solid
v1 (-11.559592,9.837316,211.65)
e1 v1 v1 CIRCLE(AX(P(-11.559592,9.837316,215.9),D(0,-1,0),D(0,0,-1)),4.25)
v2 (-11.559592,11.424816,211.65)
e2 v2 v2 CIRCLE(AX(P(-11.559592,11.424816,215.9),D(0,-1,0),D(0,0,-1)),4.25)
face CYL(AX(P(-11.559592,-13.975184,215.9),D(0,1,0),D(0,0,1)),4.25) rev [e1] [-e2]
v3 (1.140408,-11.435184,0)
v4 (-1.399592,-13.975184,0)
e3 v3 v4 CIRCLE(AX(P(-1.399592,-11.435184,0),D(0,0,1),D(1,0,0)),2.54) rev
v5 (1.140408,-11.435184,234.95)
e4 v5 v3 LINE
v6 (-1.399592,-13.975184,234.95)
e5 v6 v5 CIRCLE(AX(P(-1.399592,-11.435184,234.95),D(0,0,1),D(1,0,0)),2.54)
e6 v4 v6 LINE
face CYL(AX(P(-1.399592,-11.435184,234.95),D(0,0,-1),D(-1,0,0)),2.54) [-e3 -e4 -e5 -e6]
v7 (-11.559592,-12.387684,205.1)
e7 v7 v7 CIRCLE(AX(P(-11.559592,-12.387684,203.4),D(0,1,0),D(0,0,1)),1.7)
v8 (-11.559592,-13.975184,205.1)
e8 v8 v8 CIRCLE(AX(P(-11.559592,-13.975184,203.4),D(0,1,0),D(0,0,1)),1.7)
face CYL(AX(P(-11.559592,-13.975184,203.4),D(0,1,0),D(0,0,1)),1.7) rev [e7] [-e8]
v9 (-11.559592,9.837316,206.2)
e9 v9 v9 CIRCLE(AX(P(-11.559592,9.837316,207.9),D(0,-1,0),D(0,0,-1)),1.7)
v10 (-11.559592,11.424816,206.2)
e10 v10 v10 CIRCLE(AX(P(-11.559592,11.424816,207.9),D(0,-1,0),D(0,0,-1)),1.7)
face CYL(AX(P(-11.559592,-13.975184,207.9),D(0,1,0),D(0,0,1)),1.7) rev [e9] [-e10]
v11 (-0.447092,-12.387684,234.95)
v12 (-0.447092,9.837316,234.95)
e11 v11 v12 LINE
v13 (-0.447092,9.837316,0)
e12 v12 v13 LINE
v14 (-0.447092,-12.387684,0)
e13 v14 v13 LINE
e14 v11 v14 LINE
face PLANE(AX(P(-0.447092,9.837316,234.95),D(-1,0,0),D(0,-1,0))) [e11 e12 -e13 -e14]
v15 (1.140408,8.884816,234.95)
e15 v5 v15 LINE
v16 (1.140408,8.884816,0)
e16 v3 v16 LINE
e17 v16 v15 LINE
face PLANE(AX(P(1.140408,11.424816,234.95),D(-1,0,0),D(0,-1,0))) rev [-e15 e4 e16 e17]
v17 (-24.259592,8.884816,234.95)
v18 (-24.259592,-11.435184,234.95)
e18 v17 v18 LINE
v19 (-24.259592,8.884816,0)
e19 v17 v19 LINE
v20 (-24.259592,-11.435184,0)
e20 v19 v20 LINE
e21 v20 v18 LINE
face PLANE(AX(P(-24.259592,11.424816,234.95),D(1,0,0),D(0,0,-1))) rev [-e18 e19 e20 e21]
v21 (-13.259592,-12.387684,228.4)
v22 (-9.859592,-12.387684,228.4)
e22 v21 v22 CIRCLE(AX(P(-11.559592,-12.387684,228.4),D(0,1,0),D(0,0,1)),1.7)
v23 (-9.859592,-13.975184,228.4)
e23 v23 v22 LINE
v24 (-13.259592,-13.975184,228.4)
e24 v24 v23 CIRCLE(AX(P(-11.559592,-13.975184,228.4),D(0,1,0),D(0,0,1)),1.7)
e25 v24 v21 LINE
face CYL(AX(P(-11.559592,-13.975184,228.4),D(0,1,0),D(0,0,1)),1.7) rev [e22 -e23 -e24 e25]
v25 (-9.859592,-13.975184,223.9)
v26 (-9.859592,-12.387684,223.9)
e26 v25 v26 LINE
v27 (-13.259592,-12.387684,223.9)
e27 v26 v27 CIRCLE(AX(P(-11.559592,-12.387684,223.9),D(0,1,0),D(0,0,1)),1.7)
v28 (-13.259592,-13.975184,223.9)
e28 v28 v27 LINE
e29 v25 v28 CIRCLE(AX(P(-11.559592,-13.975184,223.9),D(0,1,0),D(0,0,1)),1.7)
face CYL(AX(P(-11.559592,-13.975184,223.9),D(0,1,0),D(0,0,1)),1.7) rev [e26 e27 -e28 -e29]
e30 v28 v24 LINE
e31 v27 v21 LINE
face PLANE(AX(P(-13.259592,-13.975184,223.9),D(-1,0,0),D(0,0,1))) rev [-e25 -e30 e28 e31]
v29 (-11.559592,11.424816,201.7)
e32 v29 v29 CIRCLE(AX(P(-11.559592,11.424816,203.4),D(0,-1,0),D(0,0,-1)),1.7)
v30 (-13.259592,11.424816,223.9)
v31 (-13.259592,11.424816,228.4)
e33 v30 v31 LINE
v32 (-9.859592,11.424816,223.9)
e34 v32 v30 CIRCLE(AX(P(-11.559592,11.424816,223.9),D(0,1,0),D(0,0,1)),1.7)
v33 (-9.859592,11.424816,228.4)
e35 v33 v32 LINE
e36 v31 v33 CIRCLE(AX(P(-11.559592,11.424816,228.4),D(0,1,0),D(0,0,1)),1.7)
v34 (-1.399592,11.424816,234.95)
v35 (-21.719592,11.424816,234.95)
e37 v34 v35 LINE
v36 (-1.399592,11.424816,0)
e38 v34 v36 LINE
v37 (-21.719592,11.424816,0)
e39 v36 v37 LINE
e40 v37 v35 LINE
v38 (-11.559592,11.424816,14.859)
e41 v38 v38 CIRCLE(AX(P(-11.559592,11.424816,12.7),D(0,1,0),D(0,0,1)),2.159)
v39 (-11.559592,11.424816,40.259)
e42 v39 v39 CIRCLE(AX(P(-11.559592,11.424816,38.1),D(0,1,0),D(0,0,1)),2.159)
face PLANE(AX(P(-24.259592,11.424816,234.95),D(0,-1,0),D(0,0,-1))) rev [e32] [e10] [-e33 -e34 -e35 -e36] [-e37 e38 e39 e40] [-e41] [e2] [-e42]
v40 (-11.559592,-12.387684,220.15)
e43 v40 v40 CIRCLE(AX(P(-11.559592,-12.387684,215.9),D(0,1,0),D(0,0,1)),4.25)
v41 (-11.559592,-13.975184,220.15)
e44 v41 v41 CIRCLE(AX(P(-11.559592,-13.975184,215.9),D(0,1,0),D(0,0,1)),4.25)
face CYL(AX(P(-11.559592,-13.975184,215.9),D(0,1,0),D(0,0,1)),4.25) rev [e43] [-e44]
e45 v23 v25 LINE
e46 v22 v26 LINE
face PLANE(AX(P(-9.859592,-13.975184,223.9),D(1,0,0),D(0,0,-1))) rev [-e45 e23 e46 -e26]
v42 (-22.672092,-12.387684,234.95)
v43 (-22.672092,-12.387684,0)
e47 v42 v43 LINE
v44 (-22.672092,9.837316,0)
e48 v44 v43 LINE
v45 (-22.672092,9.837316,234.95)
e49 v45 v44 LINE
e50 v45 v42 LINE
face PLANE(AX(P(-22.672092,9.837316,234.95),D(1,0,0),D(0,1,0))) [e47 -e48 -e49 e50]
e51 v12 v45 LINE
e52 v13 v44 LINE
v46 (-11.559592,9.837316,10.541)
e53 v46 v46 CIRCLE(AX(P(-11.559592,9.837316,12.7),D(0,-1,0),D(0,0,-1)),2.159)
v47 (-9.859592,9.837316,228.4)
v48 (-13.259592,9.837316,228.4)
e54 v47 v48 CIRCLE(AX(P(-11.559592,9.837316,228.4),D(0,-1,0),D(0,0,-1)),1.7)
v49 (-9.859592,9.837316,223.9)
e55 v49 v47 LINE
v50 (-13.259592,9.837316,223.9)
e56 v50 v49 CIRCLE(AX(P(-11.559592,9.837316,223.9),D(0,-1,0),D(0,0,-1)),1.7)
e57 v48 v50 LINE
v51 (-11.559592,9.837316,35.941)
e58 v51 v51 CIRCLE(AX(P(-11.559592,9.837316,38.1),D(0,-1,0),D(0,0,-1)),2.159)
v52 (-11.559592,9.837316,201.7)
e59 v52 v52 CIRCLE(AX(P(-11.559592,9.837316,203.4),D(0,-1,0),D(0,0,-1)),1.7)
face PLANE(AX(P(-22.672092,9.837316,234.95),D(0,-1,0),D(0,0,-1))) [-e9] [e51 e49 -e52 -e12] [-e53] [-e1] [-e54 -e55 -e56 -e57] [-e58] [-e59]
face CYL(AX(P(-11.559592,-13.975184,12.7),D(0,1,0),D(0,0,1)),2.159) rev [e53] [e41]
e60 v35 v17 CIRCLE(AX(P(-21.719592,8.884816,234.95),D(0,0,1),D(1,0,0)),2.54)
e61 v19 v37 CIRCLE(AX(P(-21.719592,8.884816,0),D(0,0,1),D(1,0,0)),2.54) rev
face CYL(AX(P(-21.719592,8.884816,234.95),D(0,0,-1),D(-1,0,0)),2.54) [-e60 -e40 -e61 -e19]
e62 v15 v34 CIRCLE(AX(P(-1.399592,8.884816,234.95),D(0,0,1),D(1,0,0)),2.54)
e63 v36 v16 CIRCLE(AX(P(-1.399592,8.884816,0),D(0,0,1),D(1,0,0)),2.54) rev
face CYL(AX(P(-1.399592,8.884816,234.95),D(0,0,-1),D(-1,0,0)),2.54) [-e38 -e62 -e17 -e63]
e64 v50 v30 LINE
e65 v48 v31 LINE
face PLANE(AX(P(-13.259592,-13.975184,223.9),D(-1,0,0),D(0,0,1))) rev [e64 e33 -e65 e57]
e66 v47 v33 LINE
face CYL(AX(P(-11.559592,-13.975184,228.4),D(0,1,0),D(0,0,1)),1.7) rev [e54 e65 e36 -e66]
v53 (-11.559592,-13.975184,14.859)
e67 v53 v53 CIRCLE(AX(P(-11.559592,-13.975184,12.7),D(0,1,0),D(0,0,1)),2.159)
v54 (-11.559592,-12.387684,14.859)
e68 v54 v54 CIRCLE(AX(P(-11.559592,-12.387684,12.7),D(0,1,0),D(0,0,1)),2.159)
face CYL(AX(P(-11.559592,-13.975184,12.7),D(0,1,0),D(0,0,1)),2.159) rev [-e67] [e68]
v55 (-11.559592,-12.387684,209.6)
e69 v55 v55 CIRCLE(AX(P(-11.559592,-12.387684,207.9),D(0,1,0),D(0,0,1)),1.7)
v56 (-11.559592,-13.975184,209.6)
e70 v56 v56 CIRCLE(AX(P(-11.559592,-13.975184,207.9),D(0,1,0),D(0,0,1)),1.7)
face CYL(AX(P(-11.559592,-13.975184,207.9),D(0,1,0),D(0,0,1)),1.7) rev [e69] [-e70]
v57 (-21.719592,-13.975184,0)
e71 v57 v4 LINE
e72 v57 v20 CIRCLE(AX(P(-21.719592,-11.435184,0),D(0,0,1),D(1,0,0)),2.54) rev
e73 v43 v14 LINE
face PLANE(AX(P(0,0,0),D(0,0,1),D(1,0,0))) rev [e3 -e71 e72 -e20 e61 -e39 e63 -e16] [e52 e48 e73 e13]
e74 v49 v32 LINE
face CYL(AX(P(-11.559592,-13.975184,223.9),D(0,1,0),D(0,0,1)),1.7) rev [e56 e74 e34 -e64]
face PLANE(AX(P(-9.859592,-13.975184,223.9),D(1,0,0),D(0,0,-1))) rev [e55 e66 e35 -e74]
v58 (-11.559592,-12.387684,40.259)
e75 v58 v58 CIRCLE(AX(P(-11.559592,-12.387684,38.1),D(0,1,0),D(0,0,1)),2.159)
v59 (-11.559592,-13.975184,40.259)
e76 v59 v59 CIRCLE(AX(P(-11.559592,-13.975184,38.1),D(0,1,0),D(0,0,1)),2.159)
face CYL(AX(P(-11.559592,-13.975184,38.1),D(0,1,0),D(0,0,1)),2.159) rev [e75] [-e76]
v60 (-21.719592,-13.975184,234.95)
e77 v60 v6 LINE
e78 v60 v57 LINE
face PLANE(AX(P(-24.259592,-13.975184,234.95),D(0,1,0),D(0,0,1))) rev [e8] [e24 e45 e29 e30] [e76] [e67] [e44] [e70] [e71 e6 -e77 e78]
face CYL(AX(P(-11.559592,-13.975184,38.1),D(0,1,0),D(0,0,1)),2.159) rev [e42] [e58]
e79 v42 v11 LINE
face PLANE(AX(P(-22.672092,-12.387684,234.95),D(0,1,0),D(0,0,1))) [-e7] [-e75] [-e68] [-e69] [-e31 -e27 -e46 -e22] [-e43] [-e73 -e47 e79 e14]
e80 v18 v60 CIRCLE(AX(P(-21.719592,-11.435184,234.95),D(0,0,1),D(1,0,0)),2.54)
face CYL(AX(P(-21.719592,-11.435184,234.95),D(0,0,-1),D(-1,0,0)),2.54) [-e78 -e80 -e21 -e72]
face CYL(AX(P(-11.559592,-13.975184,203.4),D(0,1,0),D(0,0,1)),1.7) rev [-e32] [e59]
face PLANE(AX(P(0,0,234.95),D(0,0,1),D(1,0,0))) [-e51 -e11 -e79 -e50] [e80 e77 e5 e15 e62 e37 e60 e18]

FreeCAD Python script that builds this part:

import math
import FreeCAD as App
import Part
import Sketcher
Q = App.Units.Quantity


def edges_at(feature, points):
    """Names of the edges that pass closest to the given points."""
    edges = feature.Shape.Edges
    near = lambda p: min(range(len(edges)), key=lambda i: edges[i].distToShape(Part.Vertex(*p))[0])
    return sorted({f"Edge{near(p) + 1}" for p in points})


def add_polygon(sketch, points):
    """Adds a closed chain of lines whose ends are joined by coincident constraints."""
    first, n = sketch.GeometryCount, len(points)
    for a, b in zip(points, points[1:] + points[:1]):
        sketch.addGeometry(Part.LineSegment(App.Vector(*a, 0), App.Vector(*b, 0)), False)
    for i in range(n):
        sketch.addConstraint(Sketcher.Constraint("Coincident", first + i, 2, first + (i + 1) % n, 1))

doc = App.newDocument("Part")
body = doc.addObject("PartDesign::Body", "Body")

sketch1 = body.newObject("Sketcher::SketchObject", "Sketch")
sketch1.AttachmentSupport = (doc.getObject("XY_Plane"), [""])
sketch1.MapMode = "FlatFace"
add_polygon(sketch1, [(-24.259592, 11.424816), (-24.259592, -13.975184), (1.140408, -13.975184), (1.140408, 11.424816)])
add_polygon(sketch1, [(-0.447092, -12.387684), (-22.672092, -12.387684), (-22.672092, 9.837316), (-0.447092, 9.837316)])
sketch1.addConstraint([
    Sketcher.Constraint("Vertical", 0),
    Sketcher.Constraint("Horizontal", 1),
    Sketcher.Constraint("Vertical", 2),
    Sketcher.Constraint("Horizontal", 3),
    Sketcher.Constraint("Horizontal", 4),
    Sketcher.Constraint("Vertical", 5),
    Sketcher.Constraint("Horizontal", 6),
    Sketcher.Constraint("Vertical", 7),
    Sketcher.Constraint("Equal", 3, 0),
    Sketcher.Constraint("Equal", 6, 5),
    Sketcher.Constraint("DistanceX", 1, 1, 1, 2, Q("1 in")),
    Sketcher.Constraint("DistanceX", 4, 2, 4, 1, Q("0.875 in")),
    Sketcher.Constraint("DistanceX", 0, 2, 4, 2, Q("0.0625 in")),
    Sketcher.Constraint("DistanceY", 0, 2, 4, 2, Q("0.0625 in")),
    Sketcher.Constraint("DistanceX", 0, 2, -1, 1, Q("24.259592 mm")),
    Sketcher.Constraint("DistanceY", 0, 2, -1, 1, Q("13.975184 mm")),
])
pad1 = body.newObject("PartDesign::Pad", "Pad")
pad1.Profile = sketch1
pad1.Length = Q("9.25 in")
doc.recompute()

fillet = body.newObject("PartDesign::Fillet", "Fillet")
fillet.Base = (pad1, edges_at(pad1, [
    (-24.26, 11.425, 117.475),
    (1.14, 11.425, 117.475),
    (1.14, -13.975, 117.475),
    (-24.26, -13.975, 117.475),
]))
fillet.Radius = Q("0.1 in")

sketch2 = body.newObject("Sketcher::SketchObject", "Sketch001")
sketch2.AttachmentSupport = (doc.getObject("XZ_Plane"), [""])
sketch2.MapMode = "FlatFace"
sketch2.AttachmentOffset = App.Placement(App.Vector(0, 0, -11.424816), App.Rotation())
sketch2.addGeometry([
    Part.Circle(App.Vector(-11.559592, 12.7, 0), App.Vector(0, 0, 1), 2.159),
    Part.Circle(App.Vector(-11.559592, 38.1, 0), App.Vector(0, 0, 1), 2.159),
], False)
sketch2.addConstraint([
    Sketcher.Constraint("Equal", 0, 1),
    Sketcher.Constraint("Vertical", 0, 3, 1, 3),
    Sketcher.Constraint("Diameter", 0, Q("0.17 in")),
    Sketcher.Constraint("DistanceY", 0, 3, 1, 3, Q("1 in")),
    Sketcher.Constraint("DistanceY", -1, 1, 0, 3, Q("0.5 in")),
    Sketcher.Constraint("DistanceX", 0, 3, -1, 1, Q("11.559592 mm")),
])
pocket1 = body.newObject("PartDesign::Pocket", "Pocket")
pocket1.Profile = sketch2
pocket1.Type = "ThroughAll"
pocket1.Reversed = True

sketch3 = body.newObject("Sketcher::SketchObject", "Sketch002")
sketch3.AttachmentSupport = (doc.getObject("XZ_Plane"), [""])
sketch3.MapMode = "FlatFace"
sketch3.AttachmentOffset = App.Placement(App.Vector(0, 0, -11.424816), App.Rotation())
sketch3.addGeometry([
    Part.Circle(App.Vector(-11.559592, 207.9, 0), App.Vector(0, 0, 1), 1.7),
    Part.Circle(App.Vector(-11.559592, 203.4, 0), App.Vector(0, 0, 1), 1.7),
    Part.Circle(App.Vector(-11.559592, 215.9, 0), App.Vector(0, 0, 1), 4.25),
    Part.LineSegment(App.Vector(-9.859592, 228.4, 0), App.Vector(-9.859592, 223.9, 0)),
    Part.ArcOfCircle(Part.Circle(App.Vector(-11.559592, 223.9, 0), App.Vector(0, 0, 1), 1.7), math.radians(180), math.radians(360)),
    Part.LineSegment(App.Vector(-13.259592, 223.9, 0), App.Vector(-13.259592, 228.4, 0)),
    Part.ArcOfCircle(Part.Circle(App.Vector(-11.559592, 228.4, 0), App.Vector(0, 0, 1), 1.7), math.radians(0), math.radians(180)),
], False)
sketch3.addConstraint([
    Sketcher.Constraint("Tangent", 3, 2, 4, 2),
    Sketcher.Constraint("Tangent", 4, 1, 5, 1),
    Sketcher.Constraint("Tangent", 5, 2, 6, 2),
    Sketcher.Constraint("Tangent", 6, 1, 3, 1),
    Sketcher.Constraint("Vertical", 3),
    Sketcher.Constraint("Vertical", 5),
    Sketcher.Constraint("Equal", 0, 1),
    Sketcher.Constraint("Equal", 1, 4),
    Sketcher.Constraint("Vertical", 0, 3, 1, 3),
    Sketcher.Constraint("Vertical", 1, 3, 2, 3),
    Sketcher.Constraint("Vertical", 2, 3, 4, 3),
    Sketcher.Constraint("DistanceY", -1, 1, 2, 3, Q("8.5 in")),
    Sketcher.Constraint("Diameter", 0, Q("3.4 mm")),
    Sketcher.Constraint("Diameter", 2, Q("8.5 mm")),
    Sketcher.Constraint("DistanceY", 3, 2, 3, 1, Q("4.5 mm")),
    Sketcher.Constraint("DistanceY", -1, 1, 0, 3, Q("207.9 mm")),
    Sketcher.Constraint("DistanceY", -1, 1, 1, 3, Q("203.4 mm")),
    Sketcher.Constraint("DistanceY", -1, 1, 4, 3, Q("223.9 mm")),
    Sketcher.Constraint("DistanceX", 0, 3, -1, 1, Q("11.559592 mm")),
])
pocket2 = body.newObject("PartDesign::Pocket", "Pocket001")
pocket2.Profile = sketch3
pocket2.Type = "ThroughAll"
pocket2.Midplane = True

doc.recompute()
